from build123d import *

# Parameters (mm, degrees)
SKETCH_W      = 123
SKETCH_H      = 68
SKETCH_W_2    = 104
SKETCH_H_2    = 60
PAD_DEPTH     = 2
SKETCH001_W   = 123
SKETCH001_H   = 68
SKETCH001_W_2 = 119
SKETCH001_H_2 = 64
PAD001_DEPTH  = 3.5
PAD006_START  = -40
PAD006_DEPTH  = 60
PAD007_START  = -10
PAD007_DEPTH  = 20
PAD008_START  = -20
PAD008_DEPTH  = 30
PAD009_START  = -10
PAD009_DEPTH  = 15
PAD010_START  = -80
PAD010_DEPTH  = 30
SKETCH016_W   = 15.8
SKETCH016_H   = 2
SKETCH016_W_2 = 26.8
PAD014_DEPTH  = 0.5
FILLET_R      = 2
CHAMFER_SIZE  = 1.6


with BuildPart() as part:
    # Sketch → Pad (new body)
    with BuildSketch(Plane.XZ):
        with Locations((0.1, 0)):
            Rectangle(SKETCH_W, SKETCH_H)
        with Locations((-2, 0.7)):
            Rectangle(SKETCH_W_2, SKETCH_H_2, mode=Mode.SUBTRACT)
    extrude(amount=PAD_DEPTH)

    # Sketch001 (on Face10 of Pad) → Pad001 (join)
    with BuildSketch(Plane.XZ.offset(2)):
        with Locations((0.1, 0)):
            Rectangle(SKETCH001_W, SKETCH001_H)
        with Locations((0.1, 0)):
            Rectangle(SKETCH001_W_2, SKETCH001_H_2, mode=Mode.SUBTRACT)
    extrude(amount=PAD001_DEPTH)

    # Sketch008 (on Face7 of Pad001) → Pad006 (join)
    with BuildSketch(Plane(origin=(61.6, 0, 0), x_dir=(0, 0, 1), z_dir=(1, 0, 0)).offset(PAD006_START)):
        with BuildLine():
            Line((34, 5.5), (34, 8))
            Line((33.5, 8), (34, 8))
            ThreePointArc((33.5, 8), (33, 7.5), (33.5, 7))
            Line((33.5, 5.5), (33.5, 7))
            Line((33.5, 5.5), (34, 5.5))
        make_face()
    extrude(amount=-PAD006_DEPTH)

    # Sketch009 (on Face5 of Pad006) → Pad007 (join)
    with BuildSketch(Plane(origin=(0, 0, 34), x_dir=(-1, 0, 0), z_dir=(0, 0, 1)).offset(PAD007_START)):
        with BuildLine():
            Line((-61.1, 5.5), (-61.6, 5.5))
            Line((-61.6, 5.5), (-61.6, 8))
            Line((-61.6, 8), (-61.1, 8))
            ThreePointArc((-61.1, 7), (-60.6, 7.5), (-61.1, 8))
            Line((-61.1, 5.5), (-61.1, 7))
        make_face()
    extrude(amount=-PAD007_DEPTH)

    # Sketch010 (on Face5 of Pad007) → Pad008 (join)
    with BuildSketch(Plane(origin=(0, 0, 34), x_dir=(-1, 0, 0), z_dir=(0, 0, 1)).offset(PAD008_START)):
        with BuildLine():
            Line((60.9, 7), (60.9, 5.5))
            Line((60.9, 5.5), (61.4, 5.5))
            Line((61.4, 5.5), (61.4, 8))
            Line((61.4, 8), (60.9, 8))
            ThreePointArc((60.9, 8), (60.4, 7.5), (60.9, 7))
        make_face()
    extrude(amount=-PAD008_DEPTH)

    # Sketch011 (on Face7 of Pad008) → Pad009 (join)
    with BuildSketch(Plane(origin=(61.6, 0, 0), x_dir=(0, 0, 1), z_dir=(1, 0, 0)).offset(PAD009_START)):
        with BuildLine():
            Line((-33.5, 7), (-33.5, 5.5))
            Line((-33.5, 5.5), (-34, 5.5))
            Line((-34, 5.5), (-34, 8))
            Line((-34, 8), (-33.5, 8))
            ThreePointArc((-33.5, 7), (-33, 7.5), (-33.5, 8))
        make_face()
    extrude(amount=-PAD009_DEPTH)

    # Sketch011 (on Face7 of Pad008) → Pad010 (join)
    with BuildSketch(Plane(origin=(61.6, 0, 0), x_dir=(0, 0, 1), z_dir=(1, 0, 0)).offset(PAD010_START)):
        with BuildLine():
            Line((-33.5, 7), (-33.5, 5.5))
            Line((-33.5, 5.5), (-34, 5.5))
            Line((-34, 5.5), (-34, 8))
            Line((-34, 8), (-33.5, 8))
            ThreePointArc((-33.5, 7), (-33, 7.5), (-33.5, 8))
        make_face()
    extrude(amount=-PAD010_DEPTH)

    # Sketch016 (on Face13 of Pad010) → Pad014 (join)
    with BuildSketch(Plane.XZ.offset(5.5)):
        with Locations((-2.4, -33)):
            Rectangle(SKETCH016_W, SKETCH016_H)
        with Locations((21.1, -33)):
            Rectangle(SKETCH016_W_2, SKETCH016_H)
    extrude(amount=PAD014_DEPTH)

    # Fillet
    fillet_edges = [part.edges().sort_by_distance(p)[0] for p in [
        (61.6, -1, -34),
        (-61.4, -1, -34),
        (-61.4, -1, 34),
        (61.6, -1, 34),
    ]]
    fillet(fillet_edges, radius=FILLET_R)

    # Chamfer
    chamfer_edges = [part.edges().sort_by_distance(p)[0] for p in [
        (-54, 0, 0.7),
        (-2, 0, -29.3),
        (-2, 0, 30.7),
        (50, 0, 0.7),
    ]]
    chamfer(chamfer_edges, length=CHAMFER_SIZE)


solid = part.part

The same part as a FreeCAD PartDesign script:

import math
import FreeCAD as App
import Part
import Sketcher


def edges_at(feature, points):
    """Names of the edges that pass closest to the given points."""
    edges = feature.Shape.Edges
    near = lambda p: min(range(len(edges)), key=lambda i: edges[i].distToShape(Part.Vertex(*p))[0])
    return sorted({f"Edge{near(p) + 1}" for p in points})


def add_polygon(sketch, points):
    """Adds a closed chain of lines whose ends are joined by coincident constraints."""
    first, n = sketch.GeometryCount, len(points)
    for a, b in zip(points, points[1:] + points[:1]):
        sketch.addGeometry(Part.LineSegment(App.Vector(*a, 0), App.Vector(*b, 0)), False)
    for i in range(n):
        sketch.addConstraint(Sketcher.Constraint("Coincident", first + i, 2, first + (i + 1) % n, 1))

doc = App.newDocument("Part")
params = doc.addObject("Spreadsheet::Sheet", "Params")
for row, (alias, value) in enumerate([
    ("sketch1_width", "123 mm"),
    ("sketch1_width2", "104 mm"),
    ("sketch1_height", "68 mm"),
    ("sketch1_height2", "60 mm"),
    ("pad1_length", "2 mm"),
    ("sketch2_width", "123 mm"),
    ("sketch2_width2", "119 mm"),
    ("sketch2_height", "68 mm"),
    ("sketch2_height2", "64 mm"),
    ("pad2_length", "3.5 mm"),
    ("sketch3_radius", "0.5 mm"),
    ("sketch3_width", "2.5 mm"),
    ("sketch3_height", "0.5 mm"),
    ("pad3_length", "60 mm"),
    ("sketch4_radius", "0.5 mm"),
    ("sketch4_width", "0.5 mm"),
    ("sketch4_height", "1.5 mm"),
    ("pad4_length", "20 mm"),
    ("sketch5_radius", "0.5 mm"),
    ("sketch5_width", "0.5 mm"),
    ("sketch5_height", "1.5 mm"),
    ("pad5_length", "30 mm"),
    ("sketch6_radius", "0.5 mm"),
    ("sketch6_width", "1.5 mm"),
    ("sketch6_height", "0.5 mm"),
    ("pad6_length", "15 mm"),
    ("sketch7_radius", "0.5 mm"),
    ("sketch7_width", "1.5 mm"),
    ("sketch7_height", "0.5 mm"),
    ("pad7_length", "30 mm"),
    ("sketch8_height", "2 mm"),
    ("sketch8_width", "15.8 mm"),
    ("sketch8_width2", "26.8 mm"),
    ("pad8_length", "0.5 mm"),
    ("fillet_radius", "2 mm"),
    ("chamfer_size", "1.6 mm"),
], start=1):
    params.set(f"A{row}", alias)
    params.set(f"B{row}", "=" + value)
    params.setAlias(f"B{row}", alias)

body = doc.addObject("PartDesign::Body", "Body")

# Sketch on XZ plane
sketch1 = body.newObject("Sketcher::SketchObject", "Sketch")
sketch1.AttachmentSupport = (doc.getObject("XZ_Plane"), [""])
sketch1.MapMode = "FlatFace"
add_polygon(sketch1, [(-61, 34), (-61, -34), (62, -34), (62, 34)])  # lines 0-3
add_polygon(sketch1, [(50, -29), (-54, -29), (-54, 31), (50, 31)])  # lines 4-7
sketch1.addConstraint([
    Sketcher.Constraint("Vertical", 0),
    Sketcher.Constraint("Horizontal", 1),
    Sketcher.Constraint("Vertical", 2),
    Sketcher.Constraint("Horizontal", 3),
    Sketcher.Constraint("Horizontal", 4),
    Sketcher.Constraint("Vertical", 5),
    Sketcher.Constraint("Horizontal", 6),
    Sketcher.Constraint("Vertical", 7),
    Sketcher.Constraint("DistanceX", 1, 1, 1, 2, 123.0),
    Sketcher.Constraint("DistanceX", 4, 2, 4, 1, 104.0),
    Sketcher.Constraint("DistanceY", 0, 2, 0, 1, 68.0),
    Sketcher.Constraint("DistanceY", 5, 1, 5, 2, 60.0),
    Sketcher.Constraint("DistanceY", 0, 2, -1, 1, 34.0),
    Sketcher.Constraint("DistanceX", 4, 2, -1, 1, 54.0),
    Sketcher.Constraint("DistanceX", 0, 2, -1, 1, 61.4),
    Sketcher.Constraint("DistanceY", 4, 2, -1, 1, 29.3),
])
sketch1.setExpression("Constraints[16]", "Params.sketch1_width")
sketch1.setExpression("Constraints[17]", "Params.sketch1_width2")
sketch1.setExpression("Constraints[18]", "Params.sketch1_height")
sketch1.setExpression("Constraints[19]", "Params.sketch1_height2")
pad1 = body.newObject("PartDesign::Pad", "Pad")
pad1.Profile = sketch1
pad1.setExpression("Length", "Params.pad1_length")

# Sketch on XZ plane
sketch2 = body.newObject("Sketcher::SketchObject", "Sketch001")
sketch2.AttachmentSupport = (doc.getObject("XZ_Plane"), [""])
sketch2.MapMode = "FlatFace"
sketch2.AttachmentOffset = App.Placement(App.Vector(0, 0, 2), App.Rotation())
add_polygon(sketch2, [(-61, 34), (-61, -34), (62, -34), (62, 34)])  # lines 0-3
add_polygon(sketch2, [(60, -32), (-59, -32), (-59, 32), (60, 32)])  # lines 4-7
sketch2.addConstraint([
    Sketcher.Constraint("Vertical", 0),
    Sketcher.Constraint("Horizontal", 1),
    Sketcher.Constraint("Vertical", 2),
    Sketcher.Constraint("Horizontal", 3),
    Sketcher.Constraint("Horizontal", 4),
    Sketcher.Constraint("Vertical", 5),
    Sketcher.Constraint("Horizontal", 6),
    Sketcher.Constraint("Vertical", 7),
    Sketcher.Constraint("DistanceX", 1, 1, 1, 2, 123.0),
    Sketcher.Constraint("DistanceX", 4, 2, 4, 1, 119.0),
    Sketcher.Constraint("DistanceY", 0, 2, 0, 1, 68.0),
    Sketcher.Constraint("DistanceY", 5, 1, 5, 2, 64.0),
    Sketcher.Constraint("DistanceY", 0, 2, -1, 1, 34.0),
    Sketcher.Constraint("DistanceY", 4, 2, -1, 1, 32.0),
    Sketcher.Constraint("DistanceX", 0, 2, 4, 2, 2.0),
    Sketcher.Constraint("DistanceX", 0, 2, -1, 1, 61.4),
])
sketch2.setExpression("Constraints[16]", "Params.sketch2_width")
sketch2.setExpression("Constraints[17]", "Params.sketch2_width2")
sketch2.setExpression("Constraints[18]", "Params.sketch2_height")
sketch2.setExpression("Constraints[19]", "Params.sketch2_height2")
pad2 = body.newObject("PartDesign::Pad", "Pad001")
pad2.Profile = sketch2
pad2.setExpression("Length", "Params.pad2_length")

# Sketch on YZ plane
sketch3 = body.newObject("Sketcher::SketchObject", "Sketch002")
sketch3.AttachmentSupport = (doc.getObject("YZ_Plane"), [""])
sketch3.MapMode = "FlatFace"
sketch3.AttachmentOffset = App.Placement(App.Vector(0, 0, 21.6), App.Rotation())
sketch3.addGeometry([
    Part.LineSegment(App.Vector(-5.5, 34, 0), App.Vector(-8, 34, 0)),  # 0
    Part.LineSegment(App.Vector(-8, 34, 0), App.Vector(-8, 33.5, 0)),  # 1
    Part.ArcOfCircle(Part.Circle(App.Vector(-7.5, 33.5, 0), App.Vector(0, 0, 1), 0.5), math.radians(180), math.radians(360)),  # 2
    Part.LineSegment(App.Vector(-7, 33.5, 0), App.Vector(-5.5, 33.5, 0)),  # 3
    Part.LineSegment(App.Vector(-5.5, 33.5, 0), App.Vector(-5.5, 34, 0)),  # 4
], False)
sketch3.addConstraint([
    Sketcher.Constraint("Coincident", 0, 2, 1, 1),
    Sketcher.Constraint("Tangent", 1, 2, 2, 1),
    Sketcher.Constraint("Coincident", 2, 2, 3, 1),
    Sketcher.Constraint("Coincident", 3, 2, 4, 1),
    Sketcher.Constraint("Coincident", 4, 2, 0, 1),
    Sketcher.Constraint("Horizontal", 0),
    Sketcher.Constraint("Vertical", 1),
    Sketcher.Constraint("Horizontal", 3),
    Sketcher.Constraint("Vertical", 4),
    Sketcher.Constraint("Horizontal", 1, 2, 2, 2),
    Sketcher.Constraint("Radius", 2, 0.5),
    Sketcher.Constraint("DistanceX", 0, 2, 0, 1, 2.5),
    Sketcher.Constraint("DistanceY", 1, 2, 1, 1, 0.5),
    Sketcher.Constraint("DistanceX", 0, 2, -1, 1, 8.0),
    Sketcher.Constraint("DistanceY", -1, 1, 0, 2, 34.0),
])
sketch3.setExpression("Constraints[10]", "Params.sketch3_radius")
sketch3.setExpression("Constraints[11]", "Params.sketch3_width")
sketch3.setExpression("Constraints[12]", "Params.sketch3_height")
pad3 = body.newObject("PartDesign::Pad", "Pad002")
pad3.Profile = sketch3
pad3.setExpression("Length", "Params.pad3_length")
pad3.Reversed = True

# Sketch on XY plane
sketch4 = body.newObject("Sketcher::SketchObject", "Sketch003")
sketch4.AttachmentSupport = (doc.getObject("XY_Plane"), [""])
sketch4.MapMode = "FlatFace"
sketch4.AttachmentOffset = App.Placement(App.Vector(0, 0, 24), App.Rotation())
sketch4.addGeometry([
    Part.LineSegment(App.Vector(61.6, -5.5, 0), App.Vector(61.1, -5.5, 0)),  # 0
    Part.LineSegment(App.Vector(61.1, -5.5, 0), App.Vector(61.1, -7, 0)),  # 1
    Part.ArcOfCircle(Part.Circle(App.Vector(61.1, -7.5, 0), App.Vector(0, 0, 1), 0.5), math.radians(90), math.radians(270)),  # 2
    Part.LineSegment(App.Vector(61.1, -8, 0), App.Vector(61.6, -8, 0)),  # 3
    Part.LineSegment(App.Vector(61.6, -8, 0), App.Vector(61.6, -5.5, 0)),  # 4
], False)
sketch4.addConstraint([
    Sketcher.Constraint("Coincident", 0, 2, 1, 1),
    Sketcher.Constraint("Coincident", 1, 2, 2, 1),
    Sketcher.Constraint("Tangent", 2, 2, 3, 1),
    Sketcher.Constraint("Coincident", 3, 2, 4, 1),
    Sketcher.Constraint("Coincident", 4, 2, 0, 1),
    Sketcher.Constraint("Horizontal", 0),
    Sketcher.Constraint("Vertical", 1),
    Sketcher.Constraint("Horizontal", 3),
    Sketcher.Constraint("Vertical", 4),
    Sketcher.Constraint("Vertical", 2, 3, 0, 2),
    Sketcher.Constraint("Radius", 2, 0.5),
    Sketcher.Constraint("DistanceX", 0, 2, 0, 1, 0.5),
    Sketcher.Constraint("DistanceY", 1, 2, 1, 1, 1.5),
    Sketcher.Constraint("DistanceY", 1, 2, -1, 1, 7.0),
    Sketcher.Constraint("DistanceX", -1, 1, 2, 3, 61.1),
])
sketch4.setExpression("Constraints[10]", "Params.sketch4_radius")
sketch4.setExpression("Constraints[11]", "Params.sketch4_width")
sketch4.setExpression("Constraints[12]", "Params.sketch4_height")
pad4 = body.newObject("PartDesign::Pad", "Pad003")
pad4.Profile = sketch4
pad4.setExpression("Length", "Params.pad4_length")
pad4.Reversed = True

# Sketch on XY plane
sketch5 = body.newObject("Sketcher::SketchObject", "Sketch004")
sketch5.AttachmentSupport = (doc.getObject("XY_Plane"), [""])
sketch5.MapMode = "FlatFace"
sketch5.AttachmentOffset = App.Placement(App.Vector(0, 0, 14), App.Rotation())
sketch5.addGeometry([
    Part.LineSegment(App.Vector(-60.9, -7, 0), App.Vector(-60.9, -5.5, 0)),  # 0
    Part.LineSegment(App.Vector(-60.9, -5.5, 0), App.Vector(-61.4, -5.5, 0)),  # 1
    Part.LineSegment(App.Vector(-61.4, -5.5, 0), App.Vector(-61.4, -8, 0)),  # 2
    Part.LineSegment(App.Vector(-61.4, -8, 0), App.Vector(-60.9, -8, 0)),  # 3
    Part.ArcOfCircle(Part.Circle(App.Vector(-60.9, -7.5, 0), App.Vector(0, 0, 1), 0.5), math.radians(-90), math.radians(90)),  # 4
], False)
sketch5.addConstraint([
    Sketcher.Constraint("Coincident", 0, 2, 1, 1),
    Sketcher.Constraint("Coincident", 1, 2, 2, 1),
    Sketcher.Constraint("Coincident", 2, 2, 3, 1),
    Sketcher.Constraint("Tangent", 3, 2, 4, 1),
    Sketcher.Constraint("Coincident", 4, 2, 0, 1),
    Sketcher.Constraint("Vertical", 0),
    Sketcher.Constraint("Horizontal", 1),
    Sketcher.Constraint("Vertical", 2),
    Sketcher.Constraint("Horizontal", 3),
    Sketcher.Constraint("Vertical", 4, 3, 0, 2),
    Sketcher.Constraint("Radius", 4, 0.5),
    Sketcher.Constraint("DistanceX", 1, 2, 1, 1, 0.5),
    Sketcher.Constraint("DistanceY", 0, 1, 0, 2, 1.5),
    Sketcher.Constraint("DistanceY", 2, 2, -1, 1, 8.0),
    Sketcher.Constraint("DistanceX", 4, 3, -1, 1, 60.9),
])
sketch5.setExpression("Constraints[10]", "Params.sketch5_radius")
sketch5.setExpression("Constraints[11]", "Params.sketch5_width")
sketch5.setExpression("Constraints[12]", "Params.sketch5_height")
pad5 = body.newObject("PartDesign::Pad", "Pad004")
pad5.Profile = sketch5
pad5.setExpression("Length", "Params.pad5_length")
pad5.Reversed = True

# Sketch on YZ plane
sketch6 = body.newObject("Sketcher::SketchObject", "Sketch005")
sketch6.AttachmentSupport = (doc.getObject("YZ_Plane"), [""])
sketch6.MapMode = "FlatFace"
sketch6.AttachmentOffset = App.Placement(App.Vector(0, 0, 51.6), App.Rotation())
sketch6.addGeometry([
    Part.LineSegment(App.Vector(-5.5, -33.5, 0), App.Vector(-7, -33.5, 0)),  # 0
    Part.ArcOfCircle(Part.Circle(App.Vector(-7.5, -33.5, 0), App.Vector(0, 0, 1), 0.5), math.radians(0), math.radians(180)),  # 1
    Part.LineSegment(App.Vector(-8, -33.5, 0), App.Vector(-8, -34, 0)),  # 2
    Part.LineSegment(App.Vector(-8, -34, 0), App.Vector(-5.5, -34, 0)),  # 3
    Part.LineSegment(App.Vector(-5.5, -34, 0), App.Vector(-5.5, -33.5, 0)),  # 4
], False)
sketch6.addConstraint([
    Sketcher.Constraint("Coincident", 0, 2, 1, 1),
    Sketcher.Constraint("Tangent", 1, 2, 2, 1),
    Sketcher.Constraint("Coincident", 2, 2, 3, 1),
    Sketcher.Constraint("Coincident", 3, 2, 4, 1),
    Sketcher.Constraint("Coincident", 4, 2, 0, 1),
    Sketcher.Constraint("Horizontal", 0),
    Sketcher.Constraint("Vertical", 2),
    Sketcher.Constraint("Horizontal", 3),
    Sketcher.Constraint("Vertical", 4),
    Sketcher.Constraint("Horizontal", 1, 3, 0, 2),
    Sketcher.Constraint("Radius", 1, 0.5),
    Sketcher.Constraint("DistanceX", 0, 2, 0, 1, 1.5),
    Sketcher.Constraint("DistanceY", 2, 2, 2, 1, 0.5),
    Sketcher.Constraint("DistanceX", 0, 2, -1, 1, 7.0),
    Sketcher.Constraint("DistanceY", 2, 2, -1, 1, 34.0),
])
sketch6.setExpression("Constraints[10]", "Params.sketch6_radius")
sketch6.setExpression("Constraints[11]", "Params.sketch6_width")
sketch6.setExpression("Constraints[12]", "Params.sketch6_height")
pad6 = body.newObject("PartDesign::Pad", "Pad005")
pad6.Profile = sketch6
pad6.setExpression("Length", "Params.pad6_length")
pad6.Reversed = True

# Sketch on YZ plane
sketch7 = body.newObject("Sketcher::SketchObject", "Sketch006")
sketch7.AttachmentSupport = (doc.getObject("YZ_Plane"), [""])
sketch7.MapMode = "FlatFace"
sketch7.AttachmentOffset = App.Placement(App.Vector(0, 0, -18.4), App.Rotation())
sketch7.addGeometry([
    Part.LineSegment(App.Vector(-5.5, -33.5, 0), App.Vector(-7, -33.5, 0)),  # 0
    Part.ArcOfCircle(Part.Circle(App.Vector(-7.5, -33.5, 0), App.Vector(0, 0, 1), 0.5), math.radians(0), math.radians(180)),  # 1
    Part.LineSegment(App.Vector(-8, -33.5, 0), App.Vector(-8, -34, 0)),  # 2
    Part.LineSegment(App.Vector(-8, -34, 0), App.Vector(-5.5, -34, 0)),  # 3
    Part.LineSegment(App.Vector(-5.5, -34, 0), App.Vector(-5.5, -33.5, 0)),  # 4
], False)
sketch7.addConstraint([
    Sketcher.Constraint("Coincident", 0, 2, 1, 1),
    Sketcher.Constraint("Tangent", 1, 2, 2, 1),
    Sketcher.Constraint("Coincident", 2, 2, 3, 1),
    Sketcher.Constraint("Coincident", 3, 2, 4, 1),
    Sketcher.Constraint("Coincident", 4, 2, 0, 1),
    Sketcher.Constraint("Horizontal", 0),
    Sketcher.Constraint("Vertical", 2),
    Sketcher.Constraint("Horizontal", 3),
    Sketcher.Constraint("Vertical", 4),
    Sketcher.Constraint("Horizontal", 1, 3, 0, 2),
    Sketcher.Constraint("Radius", 1, 0.5),
    Sketcher.Constraint("DistanceX", 0, 2, 0, 1, 1.5),
    Sketcher.Constraint("DistanceY", 2, 2, 2, 1, 0.5),
    Sketcher.Constraint("DistanceX", 0, 2, -1, 1, 7.0),
    Sketcher.Constraint("DistanceY", 2, 2, -1, 1, 34.0),
])
sketch7.setExpression("Constraints[10]", "Params.sketch7_radius")
sketch7.setExpression("Constraints[11]", "Params.sketch7_width")
sketch7.setExpression("Constraints[12]", "Params.sketch7_height")
pad7 = body.newObject("PartDesign::Pad", "Pad006")
pad7.Profile = sketch7
pad7.setExpression("Length", "Params.pad7_length")
pad7.Reversed = True

# Sketch on XZ plane
sketch8 = body.newObject("Sketcher::SketchObject", "Sketch007")
sketch8.AttachmentSupport = (doc.getObject("XZ_Plane"), [""])
sketch8.MapMode = "FlatFace"
sketch8.AttachmentOffset = App.Placement(App.Vector(0, 0, 5.5), App.Rotation())
add_polygon(sketch8, [(-10.3, -32), (-10.3, -34), (5.5, -34), (5.5, -32)])  # lines 0-3
add_polygon(sketch8, [(7.7, -32), (7.7, -34), (34.5, -34), (34.5, -32)])  # lines 4-7
sketch8.addConstraint([
    Sketcher.Constraint("Vertical", 0),
    Sketcher.Constraint("Horizontal", 1),
    Sketcher.Constraint("Vertical", 2),
    Sketcher.Constraint("Horizontal", 3),
    Sketcher.Constraint("Vertical", 4),
    Sketcher.Constraint("Horizontal", 5),
    Sketcher.Constraint("Vertical", 6),
    Sketcher.Constraint("Horizontal", 7),
    Sketcher.Constraint("Horizontal", 1, 2, 4, 2),
    Sketcher.Constraint("Horizontal", 3, 2, 6, 2),
    Sketcher.Constraint("DistanceY", 0, 2, 0, 1, 2.0),
    Sketcher.Constraint("DistanceX", 1, 1, 1, 2, 15.8),
    Sketcher.Constraint("DistanceX", 5, 1, 5, 2, 26.8),
    Sketcher.Constraint("DistanceY", 0, 2, -1, 1, 34.0),
    Sketcher.Constraint("DistanceX", 0, 2, 4, 2, 18.0),
    Sketcher.Constraint("DistanceX", 0, 2, -1, 1, 10.3),
])
sketch8.setExpression("Constraints[18]", "Params.sketch8_height")
sketch8.setExpression("Constraints[19]", "Params.sketch8_width")
sketch8.setExpression("Constraints[20]", "Params.sketch8_width2")
pad8 = body.newObject("PartDesign::Pad", "Pad007")
pad8.Profile = sketch8
pad8.setExpression("Length", "Params.pad8_length")
doc.recompute()

fillet = body.newObject("PartDesign::Fillet", "Fillet")
fillet.Base = (pad8, edges_at(pad8, [
    (61.6, -2.75, -34),
    (-61.4, -2.75, -34),
    (-61.4, -2.75, 34),
    (61.6, -2.75, 34),
]))
fillet.setExpression("Radius", "Params.fillet_radius")
doc.recompute()

chamfer = body.newObject("PartDesign::Chamfer", "Chamfer")
chamfer.Base = (fillet, edges_at(fillet, [
    (-54, 0, 0.7),
    (-2, 0, -29.3),
    (-2, 0, 30.7),
    (50, 0, 0.7),
]))
chamfer.setExpression("Size", "Params.chamfer_size")

doc.recompute()
